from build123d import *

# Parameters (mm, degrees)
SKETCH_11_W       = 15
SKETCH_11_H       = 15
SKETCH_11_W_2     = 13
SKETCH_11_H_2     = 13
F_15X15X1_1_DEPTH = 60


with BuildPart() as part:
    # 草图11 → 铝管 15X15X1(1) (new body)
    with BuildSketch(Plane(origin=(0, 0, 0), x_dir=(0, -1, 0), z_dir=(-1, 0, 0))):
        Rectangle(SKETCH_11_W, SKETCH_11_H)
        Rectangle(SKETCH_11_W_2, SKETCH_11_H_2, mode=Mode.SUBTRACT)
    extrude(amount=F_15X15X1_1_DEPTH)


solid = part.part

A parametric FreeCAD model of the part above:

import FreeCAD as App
import Part
import Sketcher

doc = App.newDocument("Part")
body = doc.addObject("PartDesign::Body", "Body")

# Sketch on YZ plane
sketch1 = body.newObject("Sketcher::SketchObject", "Sketch")
sketch1.AttachmentSupport = (doc.getObject("YZ_Plane"), [""])
sketch1.MapMode = "FlatFace"
sketch1.addGeometry([
    Part.LineSegment(App.Vector(8, 8, 0), App.Vector(8, -8, 0)),  # 0
    Part.LineSegment(App.Vector(8, -8, 0), App.Vector(-8, -8, 0)),  # 1
    Part.LineSegment(App.Vector(-8, -8, 0), App.Vector(-8, 8, 0)),  # 2
    Part.LineSegment(App.Vector(-8, 8, 0), App.Vector(8, 8, 0)),  # 3
    Part.LineSegment(App.Vector(-6, -6, 0), App.Vector(6, -6, 0)),  # 4
    Part.LineSegment(App.Vector(6, -6, 0), App.Vector(6, 6, 0)),  # 5
    Part.LineSegment(App.Vector(6, 6, 0), App.Vector(-6, 6, 0)),  # 6
    Part.LineSegment(App.Vector(-6, 6, 0), App.Vector(-6, -6, 0)),  # 7
], False)
sketch1.addConstraint([
    Sketcher.Constraint("Coincident", 0, 2, 1, 1),
    Sketcher.Constraint("Coincident", 1, 2, 2, 1),
    Sketcher.Constraint("Coincident", 2, 2, 3, 1),
    Sketcher.Constraint("Coincident", 3, 2, 0, 1),
    Sketcher.Constraint("Coincident", 4, 2, 5, 1),
    Sketcher.Constraint("Coincident", 5, 2, 6, 1),
    Sketcher.Constraint("Coincident", 6, 2, 7, 1),
    Sketcher.Constraint("Coincident", 7, 2, 4, 1),
    Sketcher.Constraint("Vertical", 0),
    Sketcher.Constraint("Horizontal", 1),
    Sketcher.Constraint("Vertical", 2),
    Sketcher.Constraint("Horizontal", 3),
    Sketcher.Constraint("Horizontal", 4),
    Sketcher.Constraint("Vertical", 5),
    Sketcher.Constraint("Horizontal", 6),
    Sketcher.Constraint("Vertical", 7),
    Sketcher.Constraint("Symmetric", 0, 2, 2, 2, -1, 1),
    Sketcher.Constraint("Symmetric", 4, 2, 6, 2, -1, 1),
    Sketcher.Constraint("Equal", 3, 0),
    Sketcher.Constraint("Equal", 6, 5),
    Sketcher.Constraint("DistanceX", 1, 2, 1, 1, 15.0),
    Sketcher.Constraint("DistanceX", 4, 1, 4, 2, 13.0),
])
pad1 = body.newObject("PartDesign::Pad", "Pad")
pad1.Profile = sketch1
pad1.Length = 60
pad1.Reversed = True

doc.recompute()
